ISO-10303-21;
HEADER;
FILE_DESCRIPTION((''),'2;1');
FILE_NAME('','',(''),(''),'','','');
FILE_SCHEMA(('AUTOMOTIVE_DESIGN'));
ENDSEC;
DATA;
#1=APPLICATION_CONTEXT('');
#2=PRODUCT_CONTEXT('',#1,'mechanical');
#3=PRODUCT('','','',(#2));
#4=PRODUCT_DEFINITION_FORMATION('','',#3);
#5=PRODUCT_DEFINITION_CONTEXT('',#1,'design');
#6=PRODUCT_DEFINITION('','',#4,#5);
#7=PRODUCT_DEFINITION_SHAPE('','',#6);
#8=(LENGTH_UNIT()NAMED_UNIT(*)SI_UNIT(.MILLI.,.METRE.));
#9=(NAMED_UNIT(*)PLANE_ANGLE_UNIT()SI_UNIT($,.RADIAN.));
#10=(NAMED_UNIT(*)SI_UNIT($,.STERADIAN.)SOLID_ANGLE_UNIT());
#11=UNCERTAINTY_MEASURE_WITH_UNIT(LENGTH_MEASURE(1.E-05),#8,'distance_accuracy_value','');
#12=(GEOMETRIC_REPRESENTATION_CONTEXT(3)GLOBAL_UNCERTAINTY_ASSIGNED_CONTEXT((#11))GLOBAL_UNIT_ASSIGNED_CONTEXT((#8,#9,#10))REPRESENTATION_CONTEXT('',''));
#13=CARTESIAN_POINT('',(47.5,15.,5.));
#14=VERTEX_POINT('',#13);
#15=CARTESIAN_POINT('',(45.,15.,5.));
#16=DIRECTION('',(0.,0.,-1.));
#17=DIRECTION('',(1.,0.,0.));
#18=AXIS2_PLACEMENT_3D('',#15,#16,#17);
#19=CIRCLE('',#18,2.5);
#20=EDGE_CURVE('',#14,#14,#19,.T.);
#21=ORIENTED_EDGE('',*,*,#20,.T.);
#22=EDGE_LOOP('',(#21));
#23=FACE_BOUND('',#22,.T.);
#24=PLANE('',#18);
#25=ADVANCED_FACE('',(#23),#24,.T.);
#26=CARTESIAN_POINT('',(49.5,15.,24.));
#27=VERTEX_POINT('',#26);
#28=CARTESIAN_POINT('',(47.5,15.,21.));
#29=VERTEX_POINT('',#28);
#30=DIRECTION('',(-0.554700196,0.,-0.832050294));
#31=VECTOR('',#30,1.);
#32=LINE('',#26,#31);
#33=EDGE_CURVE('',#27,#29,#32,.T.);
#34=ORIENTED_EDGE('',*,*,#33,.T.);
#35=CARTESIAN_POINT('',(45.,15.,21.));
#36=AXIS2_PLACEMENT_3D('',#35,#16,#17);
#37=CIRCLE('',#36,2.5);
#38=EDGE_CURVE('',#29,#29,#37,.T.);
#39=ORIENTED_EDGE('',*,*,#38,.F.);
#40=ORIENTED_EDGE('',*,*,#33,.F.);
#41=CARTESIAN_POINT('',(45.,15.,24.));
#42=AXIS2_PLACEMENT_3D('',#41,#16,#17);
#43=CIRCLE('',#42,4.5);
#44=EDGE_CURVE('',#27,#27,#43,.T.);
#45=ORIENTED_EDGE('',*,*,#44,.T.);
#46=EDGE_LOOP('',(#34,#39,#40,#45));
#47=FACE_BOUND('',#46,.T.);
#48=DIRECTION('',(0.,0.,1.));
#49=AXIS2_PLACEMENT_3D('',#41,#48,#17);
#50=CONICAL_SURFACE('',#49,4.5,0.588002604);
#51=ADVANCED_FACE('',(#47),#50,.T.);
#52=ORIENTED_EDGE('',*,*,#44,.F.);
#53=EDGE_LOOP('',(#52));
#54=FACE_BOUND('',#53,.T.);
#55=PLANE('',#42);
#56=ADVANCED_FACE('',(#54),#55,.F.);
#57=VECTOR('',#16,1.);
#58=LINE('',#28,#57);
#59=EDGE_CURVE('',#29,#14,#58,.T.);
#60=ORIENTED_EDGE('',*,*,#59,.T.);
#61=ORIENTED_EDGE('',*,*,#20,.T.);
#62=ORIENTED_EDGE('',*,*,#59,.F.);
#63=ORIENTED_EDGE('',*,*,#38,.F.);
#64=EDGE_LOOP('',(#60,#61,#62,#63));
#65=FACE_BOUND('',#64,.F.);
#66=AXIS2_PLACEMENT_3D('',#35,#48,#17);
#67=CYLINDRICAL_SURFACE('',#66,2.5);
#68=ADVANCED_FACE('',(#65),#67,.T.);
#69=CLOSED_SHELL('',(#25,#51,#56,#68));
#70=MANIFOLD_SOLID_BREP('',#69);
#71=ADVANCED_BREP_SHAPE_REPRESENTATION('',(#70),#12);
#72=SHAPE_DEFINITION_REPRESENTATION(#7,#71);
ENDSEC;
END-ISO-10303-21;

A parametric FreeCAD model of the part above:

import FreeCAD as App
import Part
import Sketcher
from FreeCAD import Vector
Q = App.Units.Quantity

doc = App.newDocument("Part")
params = doc.addObject("Spreadsheet::Sheet", "Params")
for row, (alias, value) in enumerate([
    ("sketch1_height", "3 mm"),
    ("sketch1_width", "4.5 mm"),
    ("sketch1_width2", "2.5 mm"),
    ("revolution_angle", "360 deg"),
    ("sketch2_diameter", "5 mm"),
    ("pad1_length", "16 mm"),
], start=1):
    params.set(f"A{row}", alias)
    params.set(f"B{row}", "=" + value)
    params.setAlias(f"B{row}", alias)

body = doc.addObject("PartDesign::Body", "Body")

sketch1 = body.newObject("Sketcher::SketchObject", "Sketch")
sketch1.AttachmentSupport = (doc.getObject("XZ_Plane"), [""])
sketch1.MapMode = "FlatFace"
sketch1.addGeometry([
    Part.LineSegment(Vector(0, -3, 0), Vector(4.5, -3, 0)),
    Part.LineSegment(Vector(4.5, -3, 0), Vector(2.5, 0, 0)),
    Part.LineSegment(Vector(2.5, 0, 0), Vector(0, 0, 0)),
    Part.LineSegment(Vector(0, 0, 0), Vector(0, -3, 0)),
], False)
sketch1.addConstraint([
    Sketcher.Constraint("Coincident", 0, 2, 1, 1),
    Sketcher.Constraint("Coincident", 1, 2, 2, 1),
    Sketcher.Constraint("Coincident", 2, 2, 3, 1),
    Sketcher.Constraint("Coincident", 3, 2, 0, 1),
    Sketcher.Constraint("Horizontal", 0),
    Sketcher.Constraint("Horizontal", 2),
    Sketcher.Constraint("Vertical", 3),
    Sketcher.Constraint("Coincident", 2, 2, -1, 1),
    Sketcher.Constraint("DistanceY", 3, 2, 3, 1, Q("3 mm")),
    Sketcher.Constraint("DistanceX", 0, 1, 0, 2, Q("4.5 mm")),
    Sketcher.Constraint("DistanceX", 2, 2, 2, 1, Q("2.5 mm")),
])
sketch1.setExpression("Constraints[8]", "Params.sketch1_height")
sketch1.setExpression("Constraints[9]", "Params.sketch1_width")
sketch1.setExpression("Constraints[10]", "Params.sketch1_width2")
revolution = body.newObject("PartDesign::Revolution", "Revolution")
revolution.Profile = sketch1
revolution.ReferenceAxis = (sketch1, ["V_Axis"])
revolution.setExpression("Angle", "Params.revolution_angle")
body2 = doc.addObject("PartDesign::Body", "Body001")

sketch2 = body2.newObject("Sketcher::SketchObject", "Sketch001")
sketch2.AttachmentSupport = (doc.getObject("XY_Plane001"), [""])
sketch2.MapMode = "FlatFace"
sketch2.addGeometry(Part.Circle(Vector(0, 0, 0), Vector(0, 0, 1), 2.5), False)
sketch2.addConstraint([
    Sketcher.Constraint("Coincident", 0, 3, -1, 1),
    Sketcher.Constraint("Diameter", 0, Q("5 mm")),
])
sketch2.setExpression("Constraints[1]", "Params.sketch2_diameter")
pad1 = body2.newObject("PartDesign::Pad", "Pad")
pad1.Profile = sketch2
pad1.setExpression("Length", "Params.pad1_length")
doc.recompute()

boolean = body2.newObject("PartDesign::Boolean", "Boolean")
boolean.Type = "Fuse"
boolean.addObjects([body])
body3 = doc.addObject("PartDesign::Body", "Body002")
doc.recompute()

body2.Placement = App.Placement(Vector(45, 15, 21), App.Rotation(Vector(0, 1, 0), 180))
boolean2 = body3.newObject("PartDesign::Boolean", "Boolean001")
boolean2.Type = "Fuse"
boolean2.addObjects([body2])
body4 = doc.addObject("PartDesign::Body", "Body003")
doc.recompute()

body3.Placement = App.Placement(Vector(90, 30, 0), App.Rotation(Vector(0, 0, 1), 180))
boolean3 = body4.newObject("PartDesign::Boolean", "Boolean002")
boolean3.Type = "Fuse"
boolean3.addObjects([body3])

doc.recompute()
